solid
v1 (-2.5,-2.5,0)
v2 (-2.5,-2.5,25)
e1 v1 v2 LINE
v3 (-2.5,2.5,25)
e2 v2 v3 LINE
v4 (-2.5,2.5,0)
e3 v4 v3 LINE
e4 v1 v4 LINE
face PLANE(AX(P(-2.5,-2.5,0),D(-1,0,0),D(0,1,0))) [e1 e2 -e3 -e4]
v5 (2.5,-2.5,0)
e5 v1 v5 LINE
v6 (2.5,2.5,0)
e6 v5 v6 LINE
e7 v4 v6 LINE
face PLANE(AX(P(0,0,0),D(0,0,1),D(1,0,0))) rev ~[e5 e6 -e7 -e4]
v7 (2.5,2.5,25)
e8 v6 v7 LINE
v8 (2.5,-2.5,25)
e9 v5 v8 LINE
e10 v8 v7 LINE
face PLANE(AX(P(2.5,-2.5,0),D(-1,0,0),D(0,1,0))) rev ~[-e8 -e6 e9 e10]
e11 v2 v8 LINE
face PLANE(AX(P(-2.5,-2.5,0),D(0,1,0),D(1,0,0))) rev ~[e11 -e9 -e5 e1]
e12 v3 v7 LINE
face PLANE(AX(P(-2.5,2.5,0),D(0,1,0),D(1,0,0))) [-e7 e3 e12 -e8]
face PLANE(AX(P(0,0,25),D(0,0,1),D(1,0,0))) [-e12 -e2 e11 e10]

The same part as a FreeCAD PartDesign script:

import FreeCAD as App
import Part
import Sketcher
from FreeCAD import Vector

doc = App.newDocument("Part")
body = doc.addObject("PartDesign::Body", "Body")

sketch1 = body.newObject("Sketcher::SketchObject", "Sketch")
sketch1.AttachmentSupport = (doc.getObject("XY_Plane"), [""])
sketch1.MapMode = "FlatFace"
sketch1.addGeometry([
    Part.LineSegment(Vector(-2, 2, 0), Vector(-2, -2, 0)),
    Part.LineSegment(Vector(-2, -2, 0), Vector(2, -2, 0)),
    Part.LineSegment(Vector(2, -2, 0), Vector(2, 2, 0)),
    Part.LineSegment(Vector(2, 2, 0), Vector(-2, 2, 0)),
], False)
sketch1.addConstraint([
    Sketcher.Constraint("Coincident", 0, 2, 1, 1),
    Sketcher.Constraint("Coincident", 1, 2, 2, 1),
    Sketcher.Constraint("Coincident", 2, 2, 3, 1),
    Sketcher.Constraint("Coincident", 3, 2, 0, 1),
    Sketcher.Constraint("Vertical", 0),
    Sketcher.Constraint("Horizontal", 1),
    Sketcher.Constraint("Vertical", 2),
    Sketcher.Constraint("Horizontal", 3),
    Sketcher.Constraint("Symmetric", 0, 2, 2, 2, -1, 1),
    Sketcher.Constraint("Equal", 3, 0),
    Sketcher.Constraint("DistanceX", 1, 1, 1, 2, 5.0),
])
pad1 = body.newObject("PartDesign::Pad", "Pad")
pad1.Profile = sketch1
pad1.Length = 25

doc.recompute()
